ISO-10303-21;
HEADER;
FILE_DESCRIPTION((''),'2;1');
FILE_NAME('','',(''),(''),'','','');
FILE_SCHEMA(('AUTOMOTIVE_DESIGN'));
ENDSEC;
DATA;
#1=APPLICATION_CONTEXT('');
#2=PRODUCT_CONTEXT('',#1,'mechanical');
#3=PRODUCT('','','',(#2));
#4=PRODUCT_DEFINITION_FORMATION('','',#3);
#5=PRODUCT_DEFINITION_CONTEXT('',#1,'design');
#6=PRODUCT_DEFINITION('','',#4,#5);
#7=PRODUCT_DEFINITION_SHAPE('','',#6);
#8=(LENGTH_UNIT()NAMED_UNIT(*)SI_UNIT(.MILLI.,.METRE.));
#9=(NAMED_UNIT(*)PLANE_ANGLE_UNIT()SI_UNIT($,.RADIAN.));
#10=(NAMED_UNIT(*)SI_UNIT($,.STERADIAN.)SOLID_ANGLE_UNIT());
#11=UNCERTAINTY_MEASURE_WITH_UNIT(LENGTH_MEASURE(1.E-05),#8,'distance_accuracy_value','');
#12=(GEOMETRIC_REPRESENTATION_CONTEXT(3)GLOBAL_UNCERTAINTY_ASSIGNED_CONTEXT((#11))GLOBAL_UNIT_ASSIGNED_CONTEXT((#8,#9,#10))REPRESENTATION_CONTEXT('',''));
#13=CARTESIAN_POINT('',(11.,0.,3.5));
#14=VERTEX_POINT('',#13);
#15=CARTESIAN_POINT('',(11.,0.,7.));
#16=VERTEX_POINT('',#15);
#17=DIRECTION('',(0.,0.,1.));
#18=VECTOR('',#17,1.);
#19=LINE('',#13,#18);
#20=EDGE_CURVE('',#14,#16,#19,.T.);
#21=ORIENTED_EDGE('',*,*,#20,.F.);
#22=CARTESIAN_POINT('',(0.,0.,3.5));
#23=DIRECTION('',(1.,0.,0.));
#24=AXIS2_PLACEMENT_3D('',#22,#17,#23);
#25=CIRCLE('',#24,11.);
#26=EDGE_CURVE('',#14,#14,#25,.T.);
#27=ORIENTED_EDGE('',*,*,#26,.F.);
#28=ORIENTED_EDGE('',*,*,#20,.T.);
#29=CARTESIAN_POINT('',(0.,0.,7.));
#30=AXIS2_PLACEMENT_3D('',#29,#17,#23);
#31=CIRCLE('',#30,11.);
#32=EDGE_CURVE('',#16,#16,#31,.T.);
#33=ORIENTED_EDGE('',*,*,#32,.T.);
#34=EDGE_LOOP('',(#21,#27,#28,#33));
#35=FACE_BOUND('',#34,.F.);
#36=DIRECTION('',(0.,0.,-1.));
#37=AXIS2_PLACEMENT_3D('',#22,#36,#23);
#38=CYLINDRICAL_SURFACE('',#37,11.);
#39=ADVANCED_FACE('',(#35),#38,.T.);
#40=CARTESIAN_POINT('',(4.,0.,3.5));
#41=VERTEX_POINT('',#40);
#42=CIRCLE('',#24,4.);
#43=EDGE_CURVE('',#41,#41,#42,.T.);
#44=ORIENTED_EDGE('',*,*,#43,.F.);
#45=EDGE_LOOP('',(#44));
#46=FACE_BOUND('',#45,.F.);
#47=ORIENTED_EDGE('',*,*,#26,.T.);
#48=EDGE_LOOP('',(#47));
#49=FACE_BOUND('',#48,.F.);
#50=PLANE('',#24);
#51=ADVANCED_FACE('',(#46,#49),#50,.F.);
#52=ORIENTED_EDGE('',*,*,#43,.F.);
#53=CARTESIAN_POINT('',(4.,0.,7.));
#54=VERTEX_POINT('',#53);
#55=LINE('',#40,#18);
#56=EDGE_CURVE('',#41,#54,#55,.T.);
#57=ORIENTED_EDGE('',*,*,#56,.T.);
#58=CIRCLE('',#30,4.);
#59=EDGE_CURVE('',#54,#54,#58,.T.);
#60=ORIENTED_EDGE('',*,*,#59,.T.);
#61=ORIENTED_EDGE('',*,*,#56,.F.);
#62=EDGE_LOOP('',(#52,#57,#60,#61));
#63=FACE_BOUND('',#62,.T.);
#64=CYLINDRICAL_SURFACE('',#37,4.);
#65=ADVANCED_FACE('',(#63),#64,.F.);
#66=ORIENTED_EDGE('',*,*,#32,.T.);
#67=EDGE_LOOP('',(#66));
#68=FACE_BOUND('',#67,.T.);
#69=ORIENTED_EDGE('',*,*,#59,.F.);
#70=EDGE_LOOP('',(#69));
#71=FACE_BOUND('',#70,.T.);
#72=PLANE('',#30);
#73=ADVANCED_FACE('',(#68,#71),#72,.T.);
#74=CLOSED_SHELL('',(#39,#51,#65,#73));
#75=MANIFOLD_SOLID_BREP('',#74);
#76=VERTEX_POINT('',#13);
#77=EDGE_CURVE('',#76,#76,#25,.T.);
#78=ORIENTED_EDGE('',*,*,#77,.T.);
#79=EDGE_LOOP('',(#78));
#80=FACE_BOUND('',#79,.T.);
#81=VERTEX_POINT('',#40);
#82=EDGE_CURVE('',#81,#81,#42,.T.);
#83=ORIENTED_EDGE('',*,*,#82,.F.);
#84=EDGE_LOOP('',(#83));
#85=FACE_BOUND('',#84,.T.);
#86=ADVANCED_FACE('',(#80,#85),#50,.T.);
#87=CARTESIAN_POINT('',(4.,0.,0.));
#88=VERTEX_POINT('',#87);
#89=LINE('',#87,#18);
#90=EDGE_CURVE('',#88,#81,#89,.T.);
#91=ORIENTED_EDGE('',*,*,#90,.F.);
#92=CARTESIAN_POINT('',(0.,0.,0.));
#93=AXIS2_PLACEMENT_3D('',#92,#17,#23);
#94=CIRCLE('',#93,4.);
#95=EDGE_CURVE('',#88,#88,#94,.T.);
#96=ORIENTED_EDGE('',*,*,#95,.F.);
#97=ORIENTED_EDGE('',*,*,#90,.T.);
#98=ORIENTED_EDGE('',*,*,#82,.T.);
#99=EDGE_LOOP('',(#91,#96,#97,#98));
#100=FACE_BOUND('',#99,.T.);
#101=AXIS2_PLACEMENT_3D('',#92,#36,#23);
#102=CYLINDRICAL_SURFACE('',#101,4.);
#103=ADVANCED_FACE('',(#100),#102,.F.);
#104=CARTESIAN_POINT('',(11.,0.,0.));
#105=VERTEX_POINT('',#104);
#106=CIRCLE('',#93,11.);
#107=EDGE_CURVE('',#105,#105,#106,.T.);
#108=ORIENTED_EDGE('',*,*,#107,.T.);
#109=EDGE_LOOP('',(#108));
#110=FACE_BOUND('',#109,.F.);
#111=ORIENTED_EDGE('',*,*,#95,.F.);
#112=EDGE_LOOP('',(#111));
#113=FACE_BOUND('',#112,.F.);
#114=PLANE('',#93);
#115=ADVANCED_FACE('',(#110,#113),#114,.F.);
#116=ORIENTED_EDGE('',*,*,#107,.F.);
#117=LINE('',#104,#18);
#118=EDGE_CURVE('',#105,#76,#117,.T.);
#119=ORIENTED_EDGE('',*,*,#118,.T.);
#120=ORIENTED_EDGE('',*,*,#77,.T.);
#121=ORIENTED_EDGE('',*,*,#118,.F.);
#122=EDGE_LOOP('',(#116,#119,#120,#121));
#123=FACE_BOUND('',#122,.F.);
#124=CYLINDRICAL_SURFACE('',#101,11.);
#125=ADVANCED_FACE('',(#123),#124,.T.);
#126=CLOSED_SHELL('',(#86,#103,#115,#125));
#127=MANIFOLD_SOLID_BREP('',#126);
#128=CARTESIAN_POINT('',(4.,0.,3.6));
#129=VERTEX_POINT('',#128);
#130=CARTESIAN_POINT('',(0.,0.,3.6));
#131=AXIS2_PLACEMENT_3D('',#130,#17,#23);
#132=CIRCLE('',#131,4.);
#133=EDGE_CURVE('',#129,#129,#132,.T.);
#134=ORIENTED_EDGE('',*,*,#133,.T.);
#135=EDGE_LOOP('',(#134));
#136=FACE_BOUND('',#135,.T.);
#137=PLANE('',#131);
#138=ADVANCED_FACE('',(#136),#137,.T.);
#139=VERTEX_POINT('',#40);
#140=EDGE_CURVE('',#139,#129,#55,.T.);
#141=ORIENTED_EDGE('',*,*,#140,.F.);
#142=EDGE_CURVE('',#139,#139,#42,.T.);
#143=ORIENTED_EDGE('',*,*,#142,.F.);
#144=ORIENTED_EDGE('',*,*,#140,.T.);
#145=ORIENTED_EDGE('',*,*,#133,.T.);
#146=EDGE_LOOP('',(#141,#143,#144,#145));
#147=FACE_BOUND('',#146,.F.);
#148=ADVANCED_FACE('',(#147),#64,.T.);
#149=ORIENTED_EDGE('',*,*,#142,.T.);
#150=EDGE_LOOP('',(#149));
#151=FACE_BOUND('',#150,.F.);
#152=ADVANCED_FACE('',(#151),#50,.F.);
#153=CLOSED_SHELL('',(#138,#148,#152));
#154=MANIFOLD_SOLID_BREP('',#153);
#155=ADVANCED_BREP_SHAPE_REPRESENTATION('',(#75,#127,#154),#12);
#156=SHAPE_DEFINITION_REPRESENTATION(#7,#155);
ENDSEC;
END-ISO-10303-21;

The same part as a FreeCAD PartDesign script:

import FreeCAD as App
import Part
import Sketcher

V = App.Vector
Q = App.Units.Quantity

doc = App.newDocument("Part")
body = doc.addObject("PartDesign::Body", "Body")

sketch1 = body.newObject("Sketcher::SketchObject", "Sketch")
sketch1.AttachmentSupport = (doc.getObject("XY_Plane"), [""])
sketch1.MapMode = "FlatFace"
sketch1.addGeometry([
    Part.Circle(V(0, 0, 0), V(0, 0, 1), 11),
    Part.Circle(V(0, 0, 0), V(0, 0, 1), 4),
], False)
sketch1.addConstraint([
    Sketcher.Constraint("Coincident", 0, 3, -1, 1),
    Sketcher.Constraint("Coincident", 1, 3, -1, 1),
    Sketcher.Constraint("Diameter", 0, Q("22 mm")),
    Sketcher.Constraint("Diameter", 1, Q("8 mm")),
])
pad1 = body.newObject("PartDesign::Pad", "Pad")
pad1.Profile = sketch1
pad1.Length = 3.5
body2 = doc.addObject("PartDesign::Body", "Body001")

sketch2 = body2.newObject("Sketcher::SketchObject", "Sketch001")
sketch2.AttachmentSupport = (doc.getObject("XY_Plane001"), [""])
sketch2.MapMode = "FlatFace"
sketch2.AttachmentOffset = App.Placement(V(0, 0, 3.5), App.Rotation())
sketch2.addGeometry(Part.Circle(V(0, 0, 0), V(0, 0, 1), 4), False)
sketch2.addConstraint([
    Sketcher.Constraint("Coincident", 0, 3, -1, 1),
    Sketcher.Constraint("Diameter", 0, Q("8 mm")),
])
pad2 = body2.newObject("PartDesign::Pad", "Pad001")
pad2.Profile = sketch2
pad2.Length = 0.1
body3 = doc.addObject("PartDesign::Body", "Body002")

sketch3 = body3.newObject("Sketcher::SketchObject", "Sketch002")
sketch3.AttachmentSupport = (doc.getObject("XY_Plane002"), [""])
sketch3.MapMode = "FlatFace"
sketch3.AttachmentOffset = App.Placement(V(0, 0, 3.5), App.Rotation())
sketch3.addGeometry([
    Part.Circle(V(0, 0, 0), V(0, 0, 1), 11),
    Part.Circle(V(0, 0, 0), V(0, 0, 1), 4),
], False)
sketch3.addConstraint([
    Sketcher.Constraint("Coincident", 0, 3, -1, 1),
    Sketcher.Constraint("Coincident", 1, 3, -1, 1),
    Sketcher.Constraint("Diameter", 0, Q("22 mm")),
    Sketcher.Constraint("Diameter", 1, Q("8 mm")),
])
pad3 = body3.newObject("PartDesign::Pad", "Pad002")
pad3.Profile = sketch3
pad3.Length = 3.5

doc.recompute()
